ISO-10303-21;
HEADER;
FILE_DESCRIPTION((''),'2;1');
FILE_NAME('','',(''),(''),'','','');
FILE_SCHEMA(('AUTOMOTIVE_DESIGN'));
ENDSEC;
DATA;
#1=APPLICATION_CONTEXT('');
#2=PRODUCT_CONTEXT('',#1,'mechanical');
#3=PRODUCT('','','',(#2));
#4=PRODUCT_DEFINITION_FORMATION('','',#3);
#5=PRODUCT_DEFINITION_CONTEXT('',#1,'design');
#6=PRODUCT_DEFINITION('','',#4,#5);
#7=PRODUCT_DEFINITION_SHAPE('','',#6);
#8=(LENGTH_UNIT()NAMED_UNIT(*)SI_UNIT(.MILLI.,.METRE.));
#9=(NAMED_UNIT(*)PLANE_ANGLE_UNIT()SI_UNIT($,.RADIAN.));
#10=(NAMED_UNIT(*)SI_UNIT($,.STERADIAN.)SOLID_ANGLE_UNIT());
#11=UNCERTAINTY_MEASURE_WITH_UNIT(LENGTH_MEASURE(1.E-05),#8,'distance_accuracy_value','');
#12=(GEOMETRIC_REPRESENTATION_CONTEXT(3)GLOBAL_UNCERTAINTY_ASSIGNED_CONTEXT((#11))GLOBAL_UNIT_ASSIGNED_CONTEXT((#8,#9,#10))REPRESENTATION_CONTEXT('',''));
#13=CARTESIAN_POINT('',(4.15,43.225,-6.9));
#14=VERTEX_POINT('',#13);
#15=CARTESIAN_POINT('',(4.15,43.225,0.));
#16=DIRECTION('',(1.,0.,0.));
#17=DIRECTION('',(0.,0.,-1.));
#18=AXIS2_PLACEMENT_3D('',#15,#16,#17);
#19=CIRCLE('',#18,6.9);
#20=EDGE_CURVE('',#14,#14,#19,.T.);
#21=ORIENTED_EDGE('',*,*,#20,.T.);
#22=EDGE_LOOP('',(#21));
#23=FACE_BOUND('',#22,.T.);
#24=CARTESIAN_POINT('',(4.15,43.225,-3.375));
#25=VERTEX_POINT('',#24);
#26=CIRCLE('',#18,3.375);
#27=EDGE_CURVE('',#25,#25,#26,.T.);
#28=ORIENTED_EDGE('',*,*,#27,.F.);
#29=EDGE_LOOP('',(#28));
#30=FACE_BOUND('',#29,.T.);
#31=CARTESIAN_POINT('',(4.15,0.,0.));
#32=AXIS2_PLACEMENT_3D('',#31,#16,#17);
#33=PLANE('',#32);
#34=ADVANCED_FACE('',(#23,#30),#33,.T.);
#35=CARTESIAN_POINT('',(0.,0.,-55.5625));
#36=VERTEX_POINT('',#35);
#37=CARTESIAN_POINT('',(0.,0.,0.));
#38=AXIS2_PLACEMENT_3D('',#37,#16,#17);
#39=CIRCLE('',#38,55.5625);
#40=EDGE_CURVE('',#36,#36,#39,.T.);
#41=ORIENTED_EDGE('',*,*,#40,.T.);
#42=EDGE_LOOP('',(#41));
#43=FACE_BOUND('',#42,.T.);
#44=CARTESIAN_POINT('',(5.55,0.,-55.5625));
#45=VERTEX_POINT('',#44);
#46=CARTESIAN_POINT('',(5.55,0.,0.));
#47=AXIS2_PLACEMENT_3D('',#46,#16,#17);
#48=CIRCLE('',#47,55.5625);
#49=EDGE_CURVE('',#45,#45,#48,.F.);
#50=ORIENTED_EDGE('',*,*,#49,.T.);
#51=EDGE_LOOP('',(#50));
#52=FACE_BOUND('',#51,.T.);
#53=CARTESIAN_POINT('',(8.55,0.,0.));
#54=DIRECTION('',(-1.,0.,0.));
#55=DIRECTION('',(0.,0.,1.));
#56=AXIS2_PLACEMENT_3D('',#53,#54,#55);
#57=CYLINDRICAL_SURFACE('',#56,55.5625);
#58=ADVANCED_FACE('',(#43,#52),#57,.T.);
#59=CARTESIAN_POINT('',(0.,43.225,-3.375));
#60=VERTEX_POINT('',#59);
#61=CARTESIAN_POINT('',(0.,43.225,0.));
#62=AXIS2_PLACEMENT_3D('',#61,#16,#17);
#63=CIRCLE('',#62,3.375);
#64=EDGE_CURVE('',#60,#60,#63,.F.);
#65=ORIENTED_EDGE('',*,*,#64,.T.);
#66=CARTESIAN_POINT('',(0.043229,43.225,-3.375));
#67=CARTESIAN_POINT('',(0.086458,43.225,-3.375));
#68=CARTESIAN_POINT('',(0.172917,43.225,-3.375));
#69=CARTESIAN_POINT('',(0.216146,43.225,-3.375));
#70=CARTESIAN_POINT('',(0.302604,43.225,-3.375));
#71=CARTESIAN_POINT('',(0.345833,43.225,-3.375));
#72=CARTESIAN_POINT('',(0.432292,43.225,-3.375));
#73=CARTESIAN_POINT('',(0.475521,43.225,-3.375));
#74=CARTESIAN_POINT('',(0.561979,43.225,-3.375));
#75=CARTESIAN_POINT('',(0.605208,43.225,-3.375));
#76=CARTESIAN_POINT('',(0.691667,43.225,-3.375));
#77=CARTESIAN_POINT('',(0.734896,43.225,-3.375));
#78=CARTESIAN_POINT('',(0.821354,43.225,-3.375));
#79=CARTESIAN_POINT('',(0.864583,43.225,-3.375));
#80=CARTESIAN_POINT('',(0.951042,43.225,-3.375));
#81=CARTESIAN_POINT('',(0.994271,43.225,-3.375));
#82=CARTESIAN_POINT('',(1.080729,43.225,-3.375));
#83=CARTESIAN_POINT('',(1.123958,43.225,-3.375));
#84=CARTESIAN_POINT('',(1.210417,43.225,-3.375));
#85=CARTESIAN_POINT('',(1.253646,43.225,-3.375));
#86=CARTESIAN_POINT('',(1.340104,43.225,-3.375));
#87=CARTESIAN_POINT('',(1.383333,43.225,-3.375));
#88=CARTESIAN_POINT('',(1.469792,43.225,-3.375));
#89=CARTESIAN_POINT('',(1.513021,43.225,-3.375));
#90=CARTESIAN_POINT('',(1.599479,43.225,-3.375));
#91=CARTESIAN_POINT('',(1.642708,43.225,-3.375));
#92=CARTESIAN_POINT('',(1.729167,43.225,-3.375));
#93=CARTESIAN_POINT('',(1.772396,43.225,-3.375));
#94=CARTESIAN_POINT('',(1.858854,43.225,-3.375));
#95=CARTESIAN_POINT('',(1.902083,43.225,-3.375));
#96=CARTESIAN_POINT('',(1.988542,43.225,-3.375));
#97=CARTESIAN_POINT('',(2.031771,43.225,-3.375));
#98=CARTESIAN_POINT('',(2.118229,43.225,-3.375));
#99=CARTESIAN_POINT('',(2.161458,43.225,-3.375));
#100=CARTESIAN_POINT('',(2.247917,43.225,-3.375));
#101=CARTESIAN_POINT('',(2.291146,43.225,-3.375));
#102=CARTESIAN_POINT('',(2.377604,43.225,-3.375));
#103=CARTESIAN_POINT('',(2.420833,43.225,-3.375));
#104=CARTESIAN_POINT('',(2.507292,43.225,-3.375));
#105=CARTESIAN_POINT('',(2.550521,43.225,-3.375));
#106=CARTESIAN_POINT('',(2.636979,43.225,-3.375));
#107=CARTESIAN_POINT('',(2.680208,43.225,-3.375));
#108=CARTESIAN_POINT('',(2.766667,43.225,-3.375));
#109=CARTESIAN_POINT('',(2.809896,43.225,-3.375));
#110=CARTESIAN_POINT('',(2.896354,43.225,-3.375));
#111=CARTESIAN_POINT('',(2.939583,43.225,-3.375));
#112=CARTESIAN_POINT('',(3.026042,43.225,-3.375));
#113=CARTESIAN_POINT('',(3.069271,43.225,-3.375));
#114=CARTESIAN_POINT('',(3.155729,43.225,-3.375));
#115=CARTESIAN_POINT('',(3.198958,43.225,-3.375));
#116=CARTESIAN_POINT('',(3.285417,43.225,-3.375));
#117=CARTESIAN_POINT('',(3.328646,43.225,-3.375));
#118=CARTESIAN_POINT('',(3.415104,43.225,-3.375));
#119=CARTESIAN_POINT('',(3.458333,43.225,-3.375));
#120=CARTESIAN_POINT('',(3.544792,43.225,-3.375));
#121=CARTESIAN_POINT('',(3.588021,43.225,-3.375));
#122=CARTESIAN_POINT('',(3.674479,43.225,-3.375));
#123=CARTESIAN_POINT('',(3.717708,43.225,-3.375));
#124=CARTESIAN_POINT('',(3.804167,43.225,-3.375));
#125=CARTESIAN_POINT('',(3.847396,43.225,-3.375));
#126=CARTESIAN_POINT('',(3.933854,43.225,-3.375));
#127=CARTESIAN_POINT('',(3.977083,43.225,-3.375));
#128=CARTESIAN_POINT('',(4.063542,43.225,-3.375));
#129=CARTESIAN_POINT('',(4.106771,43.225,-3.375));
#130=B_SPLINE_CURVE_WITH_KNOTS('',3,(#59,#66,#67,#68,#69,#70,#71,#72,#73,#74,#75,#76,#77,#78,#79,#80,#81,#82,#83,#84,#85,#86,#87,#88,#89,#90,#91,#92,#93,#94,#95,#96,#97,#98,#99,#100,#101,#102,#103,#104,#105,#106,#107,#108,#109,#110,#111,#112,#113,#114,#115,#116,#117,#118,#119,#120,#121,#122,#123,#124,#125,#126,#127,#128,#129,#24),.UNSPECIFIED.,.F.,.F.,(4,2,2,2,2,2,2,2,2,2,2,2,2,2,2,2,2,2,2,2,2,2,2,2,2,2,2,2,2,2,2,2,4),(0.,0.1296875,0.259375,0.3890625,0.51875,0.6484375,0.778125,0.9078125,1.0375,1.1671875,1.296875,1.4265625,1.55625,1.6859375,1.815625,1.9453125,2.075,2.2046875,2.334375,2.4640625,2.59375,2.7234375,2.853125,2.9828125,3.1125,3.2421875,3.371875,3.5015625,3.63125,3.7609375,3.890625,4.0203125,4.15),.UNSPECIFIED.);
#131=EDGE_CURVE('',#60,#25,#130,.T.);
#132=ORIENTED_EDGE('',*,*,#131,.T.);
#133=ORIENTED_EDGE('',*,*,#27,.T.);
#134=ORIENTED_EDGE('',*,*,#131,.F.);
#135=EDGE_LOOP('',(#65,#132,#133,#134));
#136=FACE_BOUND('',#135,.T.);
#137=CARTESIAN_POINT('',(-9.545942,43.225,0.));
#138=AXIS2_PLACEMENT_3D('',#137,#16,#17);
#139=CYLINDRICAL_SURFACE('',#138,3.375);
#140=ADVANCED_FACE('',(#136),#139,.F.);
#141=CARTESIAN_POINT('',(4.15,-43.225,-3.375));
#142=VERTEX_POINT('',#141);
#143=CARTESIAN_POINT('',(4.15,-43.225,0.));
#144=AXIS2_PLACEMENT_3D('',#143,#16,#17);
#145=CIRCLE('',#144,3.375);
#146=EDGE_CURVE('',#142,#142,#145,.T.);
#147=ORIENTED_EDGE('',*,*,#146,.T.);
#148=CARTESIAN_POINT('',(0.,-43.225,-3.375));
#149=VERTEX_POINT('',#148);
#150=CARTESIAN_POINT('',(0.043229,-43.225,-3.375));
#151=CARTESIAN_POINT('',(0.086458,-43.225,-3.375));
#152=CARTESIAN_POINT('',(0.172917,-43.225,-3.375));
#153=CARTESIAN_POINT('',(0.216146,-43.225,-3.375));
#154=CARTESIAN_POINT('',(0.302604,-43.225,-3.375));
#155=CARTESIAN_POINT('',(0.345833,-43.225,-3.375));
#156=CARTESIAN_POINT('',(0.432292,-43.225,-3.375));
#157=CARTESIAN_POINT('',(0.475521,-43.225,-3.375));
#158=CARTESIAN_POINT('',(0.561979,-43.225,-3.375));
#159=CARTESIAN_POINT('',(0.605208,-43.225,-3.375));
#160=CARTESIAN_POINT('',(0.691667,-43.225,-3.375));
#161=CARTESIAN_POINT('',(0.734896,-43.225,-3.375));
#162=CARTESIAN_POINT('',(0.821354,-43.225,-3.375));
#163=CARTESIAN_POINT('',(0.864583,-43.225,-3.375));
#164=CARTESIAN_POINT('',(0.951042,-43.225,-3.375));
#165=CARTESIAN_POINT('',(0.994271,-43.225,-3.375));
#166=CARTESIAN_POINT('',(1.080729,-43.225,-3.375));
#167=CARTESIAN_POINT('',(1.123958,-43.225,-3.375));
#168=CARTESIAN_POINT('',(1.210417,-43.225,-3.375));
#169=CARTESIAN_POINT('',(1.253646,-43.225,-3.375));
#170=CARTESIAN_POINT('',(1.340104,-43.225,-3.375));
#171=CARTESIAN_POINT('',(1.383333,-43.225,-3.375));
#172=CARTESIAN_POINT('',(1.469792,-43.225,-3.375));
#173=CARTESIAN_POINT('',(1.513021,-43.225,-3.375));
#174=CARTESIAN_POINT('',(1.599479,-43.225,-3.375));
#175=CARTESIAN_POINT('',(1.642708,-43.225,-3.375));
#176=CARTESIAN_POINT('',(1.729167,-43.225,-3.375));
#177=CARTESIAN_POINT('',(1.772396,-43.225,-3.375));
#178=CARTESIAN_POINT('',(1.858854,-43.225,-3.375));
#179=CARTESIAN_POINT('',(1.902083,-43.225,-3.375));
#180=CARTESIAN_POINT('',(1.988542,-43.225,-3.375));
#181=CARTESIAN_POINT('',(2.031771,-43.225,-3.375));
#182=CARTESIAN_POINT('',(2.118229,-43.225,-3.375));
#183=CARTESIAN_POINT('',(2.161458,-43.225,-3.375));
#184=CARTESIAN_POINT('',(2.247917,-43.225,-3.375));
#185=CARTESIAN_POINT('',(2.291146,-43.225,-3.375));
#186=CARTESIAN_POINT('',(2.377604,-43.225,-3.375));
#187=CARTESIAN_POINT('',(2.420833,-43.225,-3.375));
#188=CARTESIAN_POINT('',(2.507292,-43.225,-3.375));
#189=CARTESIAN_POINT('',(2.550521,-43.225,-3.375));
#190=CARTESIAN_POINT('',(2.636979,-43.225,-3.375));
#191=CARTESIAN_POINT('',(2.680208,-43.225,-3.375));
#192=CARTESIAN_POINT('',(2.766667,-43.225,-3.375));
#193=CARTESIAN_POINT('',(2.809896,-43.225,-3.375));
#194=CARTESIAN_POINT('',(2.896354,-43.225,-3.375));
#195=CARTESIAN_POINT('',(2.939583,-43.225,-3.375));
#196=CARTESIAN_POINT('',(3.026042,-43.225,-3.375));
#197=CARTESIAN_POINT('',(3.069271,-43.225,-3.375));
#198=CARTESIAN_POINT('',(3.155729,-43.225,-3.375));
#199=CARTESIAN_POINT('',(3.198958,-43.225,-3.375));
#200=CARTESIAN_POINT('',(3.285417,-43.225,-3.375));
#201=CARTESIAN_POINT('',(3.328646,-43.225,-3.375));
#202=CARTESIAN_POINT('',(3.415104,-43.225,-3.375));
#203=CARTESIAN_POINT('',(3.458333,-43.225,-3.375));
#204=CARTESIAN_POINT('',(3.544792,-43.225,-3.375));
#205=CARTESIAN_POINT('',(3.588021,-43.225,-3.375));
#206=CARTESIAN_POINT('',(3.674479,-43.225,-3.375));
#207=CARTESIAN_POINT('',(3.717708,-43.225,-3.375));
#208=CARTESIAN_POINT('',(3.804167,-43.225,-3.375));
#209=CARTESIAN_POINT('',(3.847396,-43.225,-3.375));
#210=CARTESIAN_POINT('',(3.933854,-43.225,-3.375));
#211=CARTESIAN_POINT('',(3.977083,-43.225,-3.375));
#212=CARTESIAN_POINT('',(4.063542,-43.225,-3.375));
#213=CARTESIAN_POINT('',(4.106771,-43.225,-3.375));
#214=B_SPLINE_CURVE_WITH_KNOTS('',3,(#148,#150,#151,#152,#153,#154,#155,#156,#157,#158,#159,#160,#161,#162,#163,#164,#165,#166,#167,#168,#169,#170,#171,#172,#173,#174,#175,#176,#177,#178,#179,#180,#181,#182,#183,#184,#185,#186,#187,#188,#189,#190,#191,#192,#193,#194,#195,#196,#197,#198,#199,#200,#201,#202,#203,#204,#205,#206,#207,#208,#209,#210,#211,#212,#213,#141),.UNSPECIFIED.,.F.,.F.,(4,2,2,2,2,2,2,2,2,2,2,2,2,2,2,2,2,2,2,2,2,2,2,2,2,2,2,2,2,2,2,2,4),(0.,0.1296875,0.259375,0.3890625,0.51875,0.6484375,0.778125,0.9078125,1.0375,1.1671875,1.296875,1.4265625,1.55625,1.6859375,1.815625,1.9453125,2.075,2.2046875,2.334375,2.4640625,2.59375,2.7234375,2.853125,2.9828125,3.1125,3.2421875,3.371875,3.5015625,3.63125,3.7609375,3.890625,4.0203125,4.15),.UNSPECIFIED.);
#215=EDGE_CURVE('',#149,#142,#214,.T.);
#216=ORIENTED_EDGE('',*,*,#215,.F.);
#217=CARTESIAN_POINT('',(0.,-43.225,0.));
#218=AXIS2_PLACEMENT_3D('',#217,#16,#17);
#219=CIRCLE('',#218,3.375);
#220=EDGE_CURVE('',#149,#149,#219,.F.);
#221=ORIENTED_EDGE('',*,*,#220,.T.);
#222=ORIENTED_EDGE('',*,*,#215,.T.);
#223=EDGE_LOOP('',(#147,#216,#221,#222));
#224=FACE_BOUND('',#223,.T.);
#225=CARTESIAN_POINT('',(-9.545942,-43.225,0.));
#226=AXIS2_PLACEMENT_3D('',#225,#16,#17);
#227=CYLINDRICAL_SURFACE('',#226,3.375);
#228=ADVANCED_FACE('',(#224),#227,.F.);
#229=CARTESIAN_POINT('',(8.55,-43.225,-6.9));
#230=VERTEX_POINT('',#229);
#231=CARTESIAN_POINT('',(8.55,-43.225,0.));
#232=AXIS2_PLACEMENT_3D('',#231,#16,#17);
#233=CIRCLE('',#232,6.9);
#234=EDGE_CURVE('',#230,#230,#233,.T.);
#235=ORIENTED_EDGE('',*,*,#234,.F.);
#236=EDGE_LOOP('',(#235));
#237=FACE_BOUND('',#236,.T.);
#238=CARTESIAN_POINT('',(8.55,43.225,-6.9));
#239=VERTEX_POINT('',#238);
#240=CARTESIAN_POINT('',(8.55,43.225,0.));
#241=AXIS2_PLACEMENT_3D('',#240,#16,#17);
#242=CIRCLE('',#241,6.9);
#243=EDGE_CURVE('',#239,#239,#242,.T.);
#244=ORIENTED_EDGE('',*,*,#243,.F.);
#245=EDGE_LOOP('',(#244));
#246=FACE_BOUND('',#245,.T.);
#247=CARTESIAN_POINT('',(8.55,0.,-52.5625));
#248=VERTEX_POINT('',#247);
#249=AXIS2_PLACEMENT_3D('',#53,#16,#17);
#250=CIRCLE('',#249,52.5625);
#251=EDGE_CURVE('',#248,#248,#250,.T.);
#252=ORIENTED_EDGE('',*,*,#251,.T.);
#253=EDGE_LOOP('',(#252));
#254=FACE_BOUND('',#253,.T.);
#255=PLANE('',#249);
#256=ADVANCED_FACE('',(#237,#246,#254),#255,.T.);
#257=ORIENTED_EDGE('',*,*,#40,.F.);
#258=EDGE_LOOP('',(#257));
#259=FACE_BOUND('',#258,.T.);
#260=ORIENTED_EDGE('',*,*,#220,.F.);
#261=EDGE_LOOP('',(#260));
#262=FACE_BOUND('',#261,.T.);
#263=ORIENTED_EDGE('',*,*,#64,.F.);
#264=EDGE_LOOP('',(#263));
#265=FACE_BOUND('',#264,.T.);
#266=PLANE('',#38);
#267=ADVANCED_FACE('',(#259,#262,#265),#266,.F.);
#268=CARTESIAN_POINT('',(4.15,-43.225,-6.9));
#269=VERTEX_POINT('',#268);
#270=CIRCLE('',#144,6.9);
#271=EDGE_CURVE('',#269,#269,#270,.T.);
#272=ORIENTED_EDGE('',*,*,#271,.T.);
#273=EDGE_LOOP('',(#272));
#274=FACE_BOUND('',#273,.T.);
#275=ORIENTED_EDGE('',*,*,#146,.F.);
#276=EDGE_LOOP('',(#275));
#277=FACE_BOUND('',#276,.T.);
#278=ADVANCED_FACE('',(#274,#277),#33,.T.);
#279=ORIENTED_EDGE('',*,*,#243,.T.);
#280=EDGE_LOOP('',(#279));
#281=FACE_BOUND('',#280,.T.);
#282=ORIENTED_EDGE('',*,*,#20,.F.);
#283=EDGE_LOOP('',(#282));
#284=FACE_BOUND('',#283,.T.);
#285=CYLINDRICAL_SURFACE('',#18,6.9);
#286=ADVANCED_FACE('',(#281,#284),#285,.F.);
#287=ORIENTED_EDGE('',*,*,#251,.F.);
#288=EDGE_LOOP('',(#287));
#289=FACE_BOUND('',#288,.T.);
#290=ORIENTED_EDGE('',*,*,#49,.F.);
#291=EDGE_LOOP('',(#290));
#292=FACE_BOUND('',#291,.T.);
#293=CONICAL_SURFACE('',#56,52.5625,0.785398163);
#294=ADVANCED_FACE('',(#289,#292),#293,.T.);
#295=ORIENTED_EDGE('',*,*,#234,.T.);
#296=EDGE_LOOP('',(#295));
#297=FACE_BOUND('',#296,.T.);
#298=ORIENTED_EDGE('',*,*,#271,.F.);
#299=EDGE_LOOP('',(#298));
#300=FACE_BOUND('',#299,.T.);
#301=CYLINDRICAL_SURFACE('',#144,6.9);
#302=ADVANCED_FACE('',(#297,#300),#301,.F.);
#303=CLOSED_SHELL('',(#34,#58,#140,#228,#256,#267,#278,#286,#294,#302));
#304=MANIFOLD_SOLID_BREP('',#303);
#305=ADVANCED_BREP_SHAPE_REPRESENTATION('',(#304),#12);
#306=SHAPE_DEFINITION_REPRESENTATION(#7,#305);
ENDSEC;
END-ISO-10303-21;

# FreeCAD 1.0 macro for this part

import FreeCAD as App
import Part
import Sketcher


def edges_at(feature, points):
    """Names of the edges that pass closest to the given points."""
    edges = feature.Shape.Edges
    near = lambda p: min(range(len(edges)), key=lambda i: edges[i].distToShape(Part.Vertex(*p))[0])
    return sorted({f"Edge{near(p) + 1}" for p in points})

doc = App.newDocument("Part")
body = doc.addObject("PartDesign::Body", "Body")

sketch1 = doc.addObject("Sketcher::SketchObject", "Sketch")
body.addObject(sketch1)
sketch1.AttachmentSupport = (doc.YZ_Plane, [""])
sketch1.MapMode = "FlatFace"
sketch1.addGeometry(Part.Circle(App.Vector(0, 0, 0), App.Vector(0, 0, 1), 55.5625), False)
sketch1.addConstraint([
    Sketcher.Constraint("Coincident", 0, 3, -1, 1),
    Sketcher.Constraint("Diameter", 0, 111.125),
])
pad1 = doc.addObject("PartDesign::Pad", "Pad")
body.addObject(pad1)
pad1.Profile = sketch1
pad1.Length = 8.55
doc.recompute()

chamfer = doc.addObject("PartDesign::Chamfer", "Chamfer")
body.addObject(chamfer)
chamfer.Base = (pad1, edges_at(pad1, [(8.55, 0, 55.562)]))
chamfer.Size = 3

sketch2 = doc.addObject("Sketcher::SketchObject", "Sketch001")
body.addObject(sketch2)
sketch2.AttachmentSupport = (doc.YZ_Plane, [""])
sketch2.MapMode = "FlatFace"
sketch2.AttachmentOffset = App.Placement(App.Vector(0, 0, 8.55), App.Rotation())
sketch2.addGeometry([
    Part.Circle(App.Vector(43.225, 0, 0), App.Vector(0, 0, 1), 6.9),
    Part.Circle(App.Vector(-43.225, 0, 0), App.Vector(0, 0, 1), 6.9),
], False)
sketch2.addConstraint([
    Sketcher.Constraint("Equal", 0, 1),
    Sketcher.Constraint("Symmetric", 0, 3, 1, 3, -1, 1),
    Sketcher.Constraint("PointOnObject", 0, 3, -1),
    Sketcher.Constraint("Diameter", 0, 13.8),
    Sketcher.Constraint("DistanceX", 1, 3, 0, 3, 86.45),
])
pocket1 = doc.addObject("PartDesign::Pocket", "Pocket")
body.addObject(pocket1)
pocket1.Profile = sketch2
pocket1.Length = 4.4

sketch3 = doc.addObject("Sketcher::SketchObject", "Sketch002")
body.addObject(sketch3)
sketch3.AttachmentSupport = (doc.YZ_Plane, [""])
sketch3.MapMode = "FlatFace"
sketch3.AttachmentOffset = App.Placement(App.Vector(0, 0, 4.15), App.Rotation())
sketch3.addGeometry([
    Part.Circle(App.Vector(43.225, 0, 0), App.Vector(0, 0, 1), 3.375),
    Part.Circle(App.Vector(-43.225, 0, 0), App.Vector(0, 0, 1), 3.375),
], False)
sketch3.addConstraint([
    Sketcher.Constraint("Equal", 0, 1),
    Sketcher.Constraint("Symmetric", 0, 3, 1, 3, -1, 1),
    Sketcher.Constraint("PointOnObject", 0, 3, -1),
    Sketcher.Constraint("Diameter", 0, 6.75),
    Sketcher.Constraint("DistanceX", 1, 3, 0, 3, 86.45),
])
pocket2 = doc.addObject("PartDesign::Pocket", "Pocket001")
body.addObject(pocket2)
pocket2.Profile = sketch3
pocket2.Length = 4.15

doc.recompute()
